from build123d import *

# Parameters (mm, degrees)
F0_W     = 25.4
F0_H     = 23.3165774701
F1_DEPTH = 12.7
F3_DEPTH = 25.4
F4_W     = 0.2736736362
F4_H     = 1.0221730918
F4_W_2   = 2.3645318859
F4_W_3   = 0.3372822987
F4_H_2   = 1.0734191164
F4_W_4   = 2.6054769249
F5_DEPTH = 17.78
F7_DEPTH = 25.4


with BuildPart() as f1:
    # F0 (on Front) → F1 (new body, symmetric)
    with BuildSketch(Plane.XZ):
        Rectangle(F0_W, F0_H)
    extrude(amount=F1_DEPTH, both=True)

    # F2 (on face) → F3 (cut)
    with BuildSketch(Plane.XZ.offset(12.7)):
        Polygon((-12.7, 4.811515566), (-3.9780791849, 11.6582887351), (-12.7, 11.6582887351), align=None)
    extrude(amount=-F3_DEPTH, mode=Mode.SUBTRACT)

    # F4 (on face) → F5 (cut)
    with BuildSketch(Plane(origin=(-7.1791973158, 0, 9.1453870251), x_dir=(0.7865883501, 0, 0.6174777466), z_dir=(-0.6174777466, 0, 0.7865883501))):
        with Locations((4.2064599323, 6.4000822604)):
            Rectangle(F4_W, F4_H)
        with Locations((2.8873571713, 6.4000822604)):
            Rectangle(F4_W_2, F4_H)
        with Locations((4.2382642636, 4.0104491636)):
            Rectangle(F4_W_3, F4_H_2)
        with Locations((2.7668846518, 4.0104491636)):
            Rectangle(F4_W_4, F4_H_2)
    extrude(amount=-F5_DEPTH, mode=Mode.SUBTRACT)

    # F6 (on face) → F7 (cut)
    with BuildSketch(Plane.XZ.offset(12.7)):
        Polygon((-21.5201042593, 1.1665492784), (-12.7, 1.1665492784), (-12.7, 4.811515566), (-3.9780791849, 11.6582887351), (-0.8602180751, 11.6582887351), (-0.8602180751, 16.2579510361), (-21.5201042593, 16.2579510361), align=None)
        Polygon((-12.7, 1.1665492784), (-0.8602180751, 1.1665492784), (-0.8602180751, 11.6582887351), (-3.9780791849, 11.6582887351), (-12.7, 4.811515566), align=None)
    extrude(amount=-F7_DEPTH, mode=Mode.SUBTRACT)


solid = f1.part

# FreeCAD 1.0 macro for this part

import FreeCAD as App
import Part
import Sketcher
Q = App.Units.Quantity

doc = App.newDocument("Part")
params = doc.addObject("Spreadsheet::Sheet", "Params")
for row, (alias, value) in enumerate([
    ("sketch1_width", "1 in"),
    ("pad1_length", "1 in"),
    ("pocket1_length", "1 in"),
    ("pocket2_length", "0.7 in"),
    ("pocket3_length", "1 in"),
], start=1):
    params.set(f"A{row}", alias)
    params.set(f"B{row}", "=" + value)
    params.setAlias(f"B{row}", alias)

body = doc.addObject("PartDesign::Body", "Body")

sketch1 = doc.addObject("Sketcher::SketchObject", "Sketch")
body.addObject(sketch1)
sketch1.AttachmentSupport = (doc.XZ_Plane, [""])
sketch1.MapMode = "FlatFace"
sketch1.addGeometry([
    Part.LineSegment(App.Vector(-12.7, 11.658289, 0), App.Vector(-12.7, -11.658289, 0)),
    Part.LineSegment(App.Vector(-12.7, -11.658289, 0), App.Vector(12.7, -11.658289, 0)),
    Part.LineSegment(App.Vector(12.7, -11.658289, 0), App.Vector(12.7, 11.658289, 0)),
    Part.LineSegment(App.Vector(12.7, 11.658289, 0), App.Vector(-12.7, 11.658289, 0)),
], False)
sketch1.addConstraint([
    Sketcher.Constraint("Coincident", 0, 2, 1, 1),
    Sketcher.Constraint("Coincident", 1, 2, 2, 1),
    Sketcher.Constraint("Coincident", 2, 2, 3, 1),
    Sketcher.Constraint("Coincident", 3, 2, 0, 1),
    Sketcher.Constraint("Vertical", 0),
    Sketcher.Constraint("Horizontal", 1),
    Sketcher.Constraint("Vertical", 2),
    Sketcher.Constraint("Horizontal", 3),
    Sketcher.Constraint("Symmetric", 0, 2, 2, 2, -1, 1),
    Sketcher.Constraint("DistanceX", 1, 1, 1, 2, Q("1 in")),
    Sketcher.Constraint("DistanceY", 0, 2, 0, 1, 23.316577),
])
sketch1.setExpression("Constraints[9]", "Params.sketch1_width")
pad1 = doc.addObject("PartDesign::Pad", "Pad")
body.addObject(pad1)
pad1.Profile = sketch1
pad1.setExpression("Length", "Params.pad1_length")
pad1.Midplane = True

sketch2 = doc.addObject("Sketcher::SketchObject", "Sketch001")
body.addObject(sketch2)
sketch2.AttachmentSupport = (doc.XZ_Plane, [""])
sketch2.MapMode = "FlatFace"
sketch2.AttachmentOffset = App.Placement(App.Vector(0, 0, 0.5 * 25.4), App.Rotation())
sketch2.addGeometry([
    Part.LineSegment(App.Vector(-12.7, 4.811516, 0), App.Vector(-3.978079, 11.658289, 0)),
    Part.LineSegment(App.Vector(-3.978079, 11.658289, 0), App.Vector(-12.7, 11.658289, 0)),
    Part.LineSegment(App.Vector(-12.7, 11.658289, 0), App.Vector(-12.7, 4.811516, 0)),
], False)
sketch2.addConstraint([
    Sketcher.Constraint("Coincident", 0, 2, 1, 1),
    Sketcher.Constraint("Coincident", 1, 2, 2, 1),
    Sketcher.Constraint("Coincident", 2, 2, 0, 1),
    Sketcher.Constraint("Horizontal", 1),
    Sketcher.Constraint("Vertical", 2),
    Sketcher.Constraint("DistanceX", 1, 2, -1, 1, Q("0.5 in")),
    Sketcher.Constraint("DistanceX", 1, 2, 1, 1, 8.721921),
    Sketcher.Constraint("Distance", 0, 11.088291),
    Sketcher.Constraint("DistanceY", -1, 1, 0, 2, 11.658289),
])
pocket1 = doc.addObject("PartDesign::Pocket", "Pocket")
body.addObject(pocket1)
pocket1.Profile = sketch2
pocket1.setExpression("Length", "Params.pocket1_length")

sketch3 = doc.addObject("Sketcher::SketchObject", "Sketch002")
body.addObject(sketch3)
sketch3.Placement = App.Placement(App.Vector(-7.179197, 0, 9.145387), App.Rotation(App.Vector(0.78658835, 0, 0.617477747), App.Vector(0, 1, 0), App.Vector(-0.617477747, 0, 0.78658835), "ZXY"))
sketch3.addGeometry([
    Part.LineSegment(App.Vector(4.343297, 5.888996, 0), App.Vector(4.343297, 6.911169, 0)),
    Part.LineSegment(App.Vector(4.343297, 6.911169, 0), App.Vector(1.705091, 6.911169, 0)),
    Part.LineSegment(App.Vector(1.705091, 6.911169, 0), App.Vector(1.705091, 5.888996, 0)),
    Part.LineSegment(App.Vector(1.705091, 5.888996, 0), App.Vector(4.343297, 5.888996, 0)),
    Part.LineSegment(App.Vector(4.406905, 3.47374, 0), App.Vector(4.406905, 4.547159, 0)),
    Part.LineSegment(App.Vector(4.406905, 4.547159, 0), App.Vector(1.464146, 4.547159, 0)),
    Part.LineSegment(App.Vector(1.464146, 4.547159, 0), App.Vector(1.464146, 3.47374, 0)),
    Part.LineSegment(App.Vector(1.464146, 3.47374, 0), App.Vector(4.406905, 3.47374, 0)),
], False)
sketch3.addConstraint([
    Sketcher.Constraint("Coincident", 0, 2, 1, 1),
    Sketcher.Constraint("Coincident", 1, 2, 2, 1),
    Sketcher.Constraint("Coincident", 2, 2, 3, 1),
    Sketcher.Constraint("Coincident", 3, 2, 0, 1),
    Sketcher.Constraint("Coincident", 4, 2, 5, 1),
    Sketcher.Constraint("Coincident", 5, 2, 6, 1),
    Sketcher.Constraint("Coincident", 6, 2, 7, 1),
    Sketcher.Constraint("Coincident", 7, 2, 4, 1),
    Sketcher.Constraint("Vertical", 0),
    Sketcher.Constraint("Horizontal", 1),
    Sketcher.Constraint("Vertical", 2),
    Sketcher.Constraint("Horizontal", 3),
    Sketcher.Constraint("Vertical", 4),
    Sketcher.Constraint("Horizontal", 5),
    Sketcher.Constraint("Vertical", 6),
    Sketcher.Constraint("Horizontal", 7),
    Sketcher.Constraint("DistanceX", 5, 2, 5, 1, 2.942759),
    Sketcher.Constraint("DistanceY", 4, 1, 4, 2, 1.073419),
    Sketcher.Constraint("DistanceX", 1, 2, 1, 1, 2.638206),
    Sketcher.Constraint("DistanceY", 0, 1, 0, 2, 1.022173),
    Sketcher.Constraint("DistanceY", -1, 1, 0, 2, 6.911169),
    Sketcher.Constraint("DistanceX", -1, 1, 1, 2, 1.705091),
    Sketcher.Constraint("DistanceY", -1, 1, 4, 2, 4.547159),
    Sketcher.Constraint("DistanceX", 3, 2, 4, 2, 0.063609),
])
pocket2 = doc.addObject("PartDesign::Pocket", "Pocket001")
body.addObject(pocket2)
pocket2.Profile = sketch3
pocket2.setExpression("Length", "Params.pocket2_length")

sketch4 = doc.addObject("Sketcher::SketchObject", "Sketch003")
body.addObject(sketch4)
sketch4.AttachmentSupport = (doc.XZ_Plane, [""])
sketch4.MapMode = "FlatFace"
sketch4.AttachmentOffset = App.Placement(App.Vector(0, 0, 0.5 * 25.4), App.Rotation())
sketch4.addGeometry([
    Part.LineSegment(App.Vector(-21.520104, 1.166549, 0), App.Vector(-0.860218, 1.166549, 0)),
    Part.LineSegment(App.Vector(-0.860218, 1.166549, 0), App.Vector(-0.860218, 16.257951, 0)),
    Part.LineSegment(App.Vector(-0.860218, 16.257951, 0), App.Vector(-21.520104, 16.257951, 0)),
    Part.LineSegment(App.Vector(-21.520104, 16.257951, 0), App.Vector(-21.520104, 1.166549, 0)),
], False)
sketch4.addConstraint([
    Sketcher.Constraint("Coincident", 0, 2, 1, 1),
    Sketcher.Constraint("Coincident", 1, 2, 2, 1),
    Sketcher.Constraint("Coincident", 2, 2, 3, 1),
    Sketcher.Constraint("Coincident", 3, 2, 0, 1),
    Sketcher.Constraint("Horizontal", 0),
    Sketcher.Constraint("Vertical", 1),
    Sketcher.Constraint("Horizontal", 2),
    Sketcher.Constraint("Vertical", 3),
    Sketcher.Constraint("DistanceY", 1, 1, 1, 2, 15.091402),
    Sketcher.Constraint("DistanceX", 0, 1, 0, 2, 20.659886),
    Sketcher.Constraint("DistanceX", 0, 2, -1, 1, 0.860218),
    Sketcher.Constraint("DistanceY", -1, 1, 0, 2, 1.166549),
])
pocket3 = doc.addObject("PartDesign::Pocket", "Pocket002")
body.addObject(pocket3)
pocket3.Profile = sketch4
pocket3.setExpression("Length", "Params.pocket3_length")

doc.recompute()
